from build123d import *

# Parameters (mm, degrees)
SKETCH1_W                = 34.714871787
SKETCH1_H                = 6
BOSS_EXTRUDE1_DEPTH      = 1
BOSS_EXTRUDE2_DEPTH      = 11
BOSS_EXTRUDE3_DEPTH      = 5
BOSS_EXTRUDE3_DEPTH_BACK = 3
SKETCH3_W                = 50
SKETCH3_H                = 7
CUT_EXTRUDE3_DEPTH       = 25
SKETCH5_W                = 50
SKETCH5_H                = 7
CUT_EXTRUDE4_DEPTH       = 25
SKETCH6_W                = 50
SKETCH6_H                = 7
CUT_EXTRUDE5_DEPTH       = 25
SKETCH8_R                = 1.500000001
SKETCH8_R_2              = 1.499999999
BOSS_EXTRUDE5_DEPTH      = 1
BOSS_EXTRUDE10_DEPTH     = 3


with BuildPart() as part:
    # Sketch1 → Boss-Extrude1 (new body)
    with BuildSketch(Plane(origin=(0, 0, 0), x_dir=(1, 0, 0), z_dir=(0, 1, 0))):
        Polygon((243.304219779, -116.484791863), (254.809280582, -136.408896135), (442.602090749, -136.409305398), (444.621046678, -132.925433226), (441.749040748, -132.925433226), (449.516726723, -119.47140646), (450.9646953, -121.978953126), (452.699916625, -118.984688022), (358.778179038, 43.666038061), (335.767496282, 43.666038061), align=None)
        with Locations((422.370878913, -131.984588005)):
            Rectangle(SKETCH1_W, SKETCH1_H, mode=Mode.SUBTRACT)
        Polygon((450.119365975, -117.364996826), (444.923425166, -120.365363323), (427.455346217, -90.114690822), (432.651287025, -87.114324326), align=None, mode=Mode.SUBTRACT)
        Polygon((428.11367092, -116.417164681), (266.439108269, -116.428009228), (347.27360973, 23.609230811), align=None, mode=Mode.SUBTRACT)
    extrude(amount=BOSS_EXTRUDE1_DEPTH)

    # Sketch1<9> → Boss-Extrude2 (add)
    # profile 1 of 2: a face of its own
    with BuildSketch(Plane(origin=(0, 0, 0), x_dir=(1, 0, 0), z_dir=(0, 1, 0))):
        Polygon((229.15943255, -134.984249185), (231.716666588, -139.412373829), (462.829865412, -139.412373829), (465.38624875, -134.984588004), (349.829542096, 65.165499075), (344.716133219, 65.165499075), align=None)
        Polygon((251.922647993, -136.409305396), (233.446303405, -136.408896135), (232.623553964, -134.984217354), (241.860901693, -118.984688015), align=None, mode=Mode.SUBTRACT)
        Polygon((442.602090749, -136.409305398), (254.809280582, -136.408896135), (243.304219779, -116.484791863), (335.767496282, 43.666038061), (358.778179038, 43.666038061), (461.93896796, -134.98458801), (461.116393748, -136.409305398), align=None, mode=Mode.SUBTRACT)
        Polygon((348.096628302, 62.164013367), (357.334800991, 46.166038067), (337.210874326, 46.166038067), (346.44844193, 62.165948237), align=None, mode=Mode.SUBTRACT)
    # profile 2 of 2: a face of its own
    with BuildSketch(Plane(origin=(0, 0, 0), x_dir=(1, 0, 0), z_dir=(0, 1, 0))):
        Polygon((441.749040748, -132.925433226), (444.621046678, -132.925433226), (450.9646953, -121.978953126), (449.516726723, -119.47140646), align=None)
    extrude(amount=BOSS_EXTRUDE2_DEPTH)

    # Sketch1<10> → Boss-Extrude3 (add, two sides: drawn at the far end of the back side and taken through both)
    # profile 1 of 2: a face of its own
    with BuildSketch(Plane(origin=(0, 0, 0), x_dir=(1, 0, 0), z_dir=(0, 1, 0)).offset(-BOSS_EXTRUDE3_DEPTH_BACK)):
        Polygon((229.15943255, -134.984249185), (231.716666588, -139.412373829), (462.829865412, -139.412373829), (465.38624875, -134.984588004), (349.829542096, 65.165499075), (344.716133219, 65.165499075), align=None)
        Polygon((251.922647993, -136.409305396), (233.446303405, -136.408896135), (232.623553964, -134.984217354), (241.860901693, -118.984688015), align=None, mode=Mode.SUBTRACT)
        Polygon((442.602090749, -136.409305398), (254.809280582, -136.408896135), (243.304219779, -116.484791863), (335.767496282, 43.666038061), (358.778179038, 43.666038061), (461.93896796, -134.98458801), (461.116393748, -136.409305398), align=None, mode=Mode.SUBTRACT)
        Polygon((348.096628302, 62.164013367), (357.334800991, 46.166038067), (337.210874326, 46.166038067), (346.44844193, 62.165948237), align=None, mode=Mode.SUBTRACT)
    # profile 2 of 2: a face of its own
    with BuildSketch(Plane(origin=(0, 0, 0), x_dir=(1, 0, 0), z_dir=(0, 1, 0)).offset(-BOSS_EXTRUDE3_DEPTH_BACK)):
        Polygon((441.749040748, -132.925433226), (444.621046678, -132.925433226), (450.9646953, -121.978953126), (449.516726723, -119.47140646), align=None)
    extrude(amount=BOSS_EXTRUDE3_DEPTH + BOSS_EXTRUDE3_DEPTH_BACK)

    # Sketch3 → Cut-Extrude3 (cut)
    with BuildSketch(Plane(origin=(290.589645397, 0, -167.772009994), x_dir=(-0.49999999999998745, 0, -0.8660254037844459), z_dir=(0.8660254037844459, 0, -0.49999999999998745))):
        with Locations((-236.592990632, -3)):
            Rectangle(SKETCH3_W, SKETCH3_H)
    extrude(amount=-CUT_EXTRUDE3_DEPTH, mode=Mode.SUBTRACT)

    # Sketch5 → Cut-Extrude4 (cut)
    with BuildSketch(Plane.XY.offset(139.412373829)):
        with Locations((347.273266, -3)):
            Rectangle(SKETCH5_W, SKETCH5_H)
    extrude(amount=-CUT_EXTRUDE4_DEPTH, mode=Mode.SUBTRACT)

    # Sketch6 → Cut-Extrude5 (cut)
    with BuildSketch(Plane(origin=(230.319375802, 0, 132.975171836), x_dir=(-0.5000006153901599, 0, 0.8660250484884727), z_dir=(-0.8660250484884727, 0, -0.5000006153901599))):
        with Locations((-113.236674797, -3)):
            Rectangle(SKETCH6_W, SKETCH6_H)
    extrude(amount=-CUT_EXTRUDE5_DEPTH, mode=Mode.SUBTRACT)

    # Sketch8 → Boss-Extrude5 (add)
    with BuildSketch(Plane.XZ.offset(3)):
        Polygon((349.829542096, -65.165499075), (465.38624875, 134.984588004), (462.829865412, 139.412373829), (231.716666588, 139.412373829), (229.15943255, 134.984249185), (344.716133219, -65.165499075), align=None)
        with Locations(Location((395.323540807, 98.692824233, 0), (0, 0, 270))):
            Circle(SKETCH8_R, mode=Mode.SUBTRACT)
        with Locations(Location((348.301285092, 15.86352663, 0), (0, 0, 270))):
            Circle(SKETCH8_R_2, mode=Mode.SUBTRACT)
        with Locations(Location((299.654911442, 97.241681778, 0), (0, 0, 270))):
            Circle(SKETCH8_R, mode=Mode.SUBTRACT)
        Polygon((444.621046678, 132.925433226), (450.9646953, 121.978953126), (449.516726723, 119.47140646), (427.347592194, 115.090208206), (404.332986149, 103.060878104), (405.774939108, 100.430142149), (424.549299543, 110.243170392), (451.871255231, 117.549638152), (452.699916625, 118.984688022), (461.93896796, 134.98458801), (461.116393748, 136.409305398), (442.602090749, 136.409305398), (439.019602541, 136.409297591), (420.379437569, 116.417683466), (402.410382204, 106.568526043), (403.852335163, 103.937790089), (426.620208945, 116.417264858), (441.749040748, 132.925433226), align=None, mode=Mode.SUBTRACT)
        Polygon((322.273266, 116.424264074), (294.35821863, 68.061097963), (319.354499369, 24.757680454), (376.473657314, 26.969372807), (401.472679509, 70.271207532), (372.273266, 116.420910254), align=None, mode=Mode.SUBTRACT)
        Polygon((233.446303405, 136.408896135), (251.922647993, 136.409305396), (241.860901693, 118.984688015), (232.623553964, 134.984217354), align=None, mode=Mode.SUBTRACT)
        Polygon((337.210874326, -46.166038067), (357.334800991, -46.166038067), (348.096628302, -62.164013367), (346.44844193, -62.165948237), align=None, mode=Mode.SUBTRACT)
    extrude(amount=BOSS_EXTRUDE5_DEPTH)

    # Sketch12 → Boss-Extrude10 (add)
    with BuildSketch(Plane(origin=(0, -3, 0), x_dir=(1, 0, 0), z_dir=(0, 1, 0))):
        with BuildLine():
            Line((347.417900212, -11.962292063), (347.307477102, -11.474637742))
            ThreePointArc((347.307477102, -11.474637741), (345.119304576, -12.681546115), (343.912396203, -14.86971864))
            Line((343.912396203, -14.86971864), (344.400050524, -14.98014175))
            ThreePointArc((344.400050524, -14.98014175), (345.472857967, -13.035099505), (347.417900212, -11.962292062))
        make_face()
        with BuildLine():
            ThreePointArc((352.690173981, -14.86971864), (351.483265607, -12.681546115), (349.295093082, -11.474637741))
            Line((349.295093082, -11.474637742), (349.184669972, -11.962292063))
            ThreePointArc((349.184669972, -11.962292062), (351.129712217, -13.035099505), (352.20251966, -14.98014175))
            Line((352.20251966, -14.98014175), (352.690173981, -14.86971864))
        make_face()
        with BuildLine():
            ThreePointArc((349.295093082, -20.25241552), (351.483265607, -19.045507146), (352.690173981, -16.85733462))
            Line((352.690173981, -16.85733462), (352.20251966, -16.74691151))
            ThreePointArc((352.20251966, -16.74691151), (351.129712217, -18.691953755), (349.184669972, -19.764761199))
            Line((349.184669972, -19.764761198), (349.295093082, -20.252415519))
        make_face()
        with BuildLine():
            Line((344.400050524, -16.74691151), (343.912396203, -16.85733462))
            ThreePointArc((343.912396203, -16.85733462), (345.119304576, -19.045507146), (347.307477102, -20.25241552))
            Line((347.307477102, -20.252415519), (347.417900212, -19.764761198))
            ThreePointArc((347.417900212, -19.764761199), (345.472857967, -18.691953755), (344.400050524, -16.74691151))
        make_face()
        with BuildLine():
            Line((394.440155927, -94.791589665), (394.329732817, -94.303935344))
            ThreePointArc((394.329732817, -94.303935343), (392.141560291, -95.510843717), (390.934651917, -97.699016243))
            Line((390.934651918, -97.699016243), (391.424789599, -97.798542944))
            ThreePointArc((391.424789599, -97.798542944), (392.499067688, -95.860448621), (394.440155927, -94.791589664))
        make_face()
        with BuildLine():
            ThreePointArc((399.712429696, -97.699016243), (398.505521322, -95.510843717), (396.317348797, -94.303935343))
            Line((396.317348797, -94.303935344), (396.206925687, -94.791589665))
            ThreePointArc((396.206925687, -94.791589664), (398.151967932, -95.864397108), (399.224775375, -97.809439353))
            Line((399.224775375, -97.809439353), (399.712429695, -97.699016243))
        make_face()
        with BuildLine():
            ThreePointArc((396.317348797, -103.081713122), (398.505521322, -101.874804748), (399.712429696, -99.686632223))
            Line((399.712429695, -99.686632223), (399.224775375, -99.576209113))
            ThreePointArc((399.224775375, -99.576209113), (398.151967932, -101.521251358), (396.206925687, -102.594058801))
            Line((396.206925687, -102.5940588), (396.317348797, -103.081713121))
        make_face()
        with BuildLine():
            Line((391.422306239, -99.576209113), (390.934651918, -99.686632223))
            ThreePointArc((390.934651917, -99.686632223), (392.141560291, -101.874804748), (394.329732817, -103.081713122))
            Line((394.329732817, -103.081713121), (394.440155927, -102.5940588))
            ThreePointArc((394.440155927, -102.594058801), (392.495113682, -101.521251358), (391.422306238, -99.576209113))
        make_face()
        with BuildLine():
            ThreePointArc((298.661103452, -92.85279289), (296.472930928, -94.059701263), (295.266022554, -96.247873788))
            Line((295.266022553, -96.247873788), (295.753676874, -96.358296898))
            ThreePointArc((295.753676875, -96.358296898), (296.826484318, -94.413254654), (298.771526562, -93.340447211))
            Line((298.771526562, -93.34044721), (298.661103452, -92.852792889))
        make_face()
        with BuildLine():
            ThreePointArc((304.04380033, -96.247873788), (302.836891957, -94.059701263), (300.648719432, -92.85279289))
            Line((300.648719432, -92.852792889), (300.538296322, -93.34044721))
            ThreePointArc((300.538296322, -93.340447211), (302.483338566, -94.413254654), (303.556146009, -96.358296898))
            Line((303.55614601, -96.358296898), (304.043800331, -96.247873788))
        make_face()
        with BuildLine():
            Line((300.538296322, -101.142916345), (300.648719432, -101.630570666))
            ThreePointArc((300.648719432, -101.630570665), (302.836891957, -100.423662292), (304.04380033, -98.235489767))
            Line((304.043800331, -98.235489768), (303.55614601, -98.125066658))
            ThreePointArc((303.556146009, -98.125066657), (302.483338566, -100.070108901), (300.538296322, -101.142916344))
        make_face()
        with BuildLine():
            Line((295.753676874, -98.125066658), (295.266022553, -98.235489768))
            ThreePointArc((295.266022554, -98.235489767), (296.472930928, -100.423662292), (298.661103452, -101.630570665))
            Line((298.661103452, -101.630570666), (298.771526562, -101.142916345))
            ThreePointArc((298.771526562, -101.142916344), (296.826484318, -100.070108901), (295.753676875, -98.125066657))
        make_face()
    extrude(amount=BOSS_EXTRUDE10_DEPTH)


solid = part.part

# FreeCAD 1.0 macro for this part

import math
import FreeCAD as App
import Part
import Sketcher

V = App.Vector
Q = App.Units.Quantity


def add_polygon(sketch, points):
    """Adds a closed chain of lines whose ends are joined by coincident constraints."""
    first, n = sketch.GeometryCount, len(points)
    for a, b in zip(points, points[1:] + points[:1]):
        sketch.addGeometry(Part.LineSegment(App.Vector(*a, 0), App.Vector(*b, 0)), False)
    for i in range(n):
        sketch.addConstraint(Sketcher.Constraint("Coincident", first + i, 2, first + (i + 1) % n, 1))

doc = App.newDocument("Part")
body = doc.addObject("PartDesign::Body", "Body")

# Sketch on XZ plane
sketch1 = body.newObject("Sketcher::SketchObject", "Sketch")
sketch1.AttachmentSupport = (doc.getObject("XZ_Plane"), [""])
sketch1.MapMode = "FlatFace"
add_polygon(sketch1, [(243.30422, 116.484792), (254.809281, 136.408896), (442.602091, 136.409305), (444.621047, 132.925433), (441.749041, 132.925433), (449.516727, 119.471406), (450.964695, 121.978953), (452.699917, 118.984688), (358.778179, -43.666038), (335.767496, -43.666038)])  # lines 0-9
add_polygon(sketch1, [(439.728315, 134.984588), (405.013443, 134.984588), (405.013443, 128.984588), (439.728315, 128.984588)])  # lines 10-13
add_polygon(sketch1, [(432.651287, 87.114324), (450.119366, 117.364997), (444.923425, 120.365363), (427.455346, 90.114691)])  # lines 14-17
add_polygon(sketch1, [(347.27361, -23.609231), (428.113671, 116.417165), (266.439108, 116.428009)])  # lines 18-20
sketch1.addConstraint(Sketcher.Constraint("Horizontal", 3))
sketch1.addConstraint(Sketcher.Constraint("Horizontal", 8))
sketch1.addConstraint(Sketcher.Constraint("Horizontal", 10))
sketch1.addConstraint(Sketcher.Constraint("Vertical", 11))
sketch1.addConstraint(Sketcher.Constraint("Horizontal", 12))
sketch1.addConstraint(Sketcher.Constraint("Vertical", 13))
sketch1.addConstraint(Sketcher.Constraint("DistanceY", 11, 2, 11, 1, Q("6 mm")))
sketch1.addConstraint(Sketcher.Constraint("Distance", 15, Q("6 mm")))
sketch1.addConstraint(Sketcher.Constraint("Distance", 17, Q("6 mm")))
sketch1.addConstraint(Sketcher.Constraint("DistanceX", 10, 2, 10, 1, Q("34.714872 mm")))
sketch1.addConstraint(Sketcher.Constraint("DistanceY", 4, 2, 1, 2, Q("16.937899 mm")))
sketch1.addConstraint(Sketcher.Constraint("DistanceX", 8, 2, 5, 2, Q("115.197199 mm")))
sketch1.addConstraint(Sketcher.Constraint("DistanceX", 15, 2, 4, 2, Q("4.593302 mm")))
sketch1.addConstraint(Sketcher.Constraint("DistanceY", 18, 2, 15, 2, Q("3.948199 mm")))
sketch1.addConstraint(Sketcher.Constraint("Distance", 0, Q("23.007311 mm")))
sketch1.addConstraint(Sketcher.Constraint("Distance", 1, Q("187.79281 mm")))
sketch1.addConstraint(Sketcher.Constraint("Distance", 4, Q("15.535372 mm")))
sketch1.addConstraint(Sketcher.Constraint("Distance", 7, Q("187.82053 mm")))
sketch1.addConstraint(Sketcher.Constraint("Distance", 14, Q("34.93189 mm")))
sketch1.addConstraint(Sketcher.Constraint("Distance", 16, Q("34.93189 mm")))
sketch1.addConstraint(Sketcher.Constraint("Distance", 20, Q("161.693059 mm")))
sketch1.addConstraint(Sketcher.Constraint("DistanceX", 3, 2, 3, 1, Q("2.872006 mm")))
sketch1.addConstraint(Sketcher.Constraint("DistanceX", 8, 2, 8, 1, Q("23.010683 mm")))
sketch1.addConstraint(Sketcher.Constraint("DistanceX", -1, 1, 0, 2, Q("254.809281 mm")))
sketch1.addConstraint(Sketcher.Constraint("DistanceX", -1, 1, 3, 2, Q("441.749041 mm")))
sketch1.addConstraint(Sketcher.Constraint("DistanceY", -1, 1, 6, 2, Q("118.984688 mm")))
sketch1.addConstraint(Sketcher.Constraint("DistanceX", -1, 1, 7, 2, Q("358.778179 mm")))
sketch1.addConstraint(Sketcher.Constraint("DistanceY", 7, 2, -1, 1, Q("43.666038 mm")))
sketch1.addConstraint(Sketcher.Constraint("DistanceX", -1, 1, 9, 2, Q("243.30422 mm")))
sketch1.addConstraint(Sketcher.Constraint("DistanceY", -1, 1, 9, 2, Q("116.484792 mm")))
sketch1.addConstraint(Sketcher.Constraint("DistanceY", -1, 1, 10, 2, Q("134.984588 mm")))
sketch1.addConstraint(Sketcher.Constraint("DistanceY", -1, 1, 16, 2, Q("90.114691 mm")))
sketch1.addConstraint(Sketcher.Constraint("DistanceX", -1, 1, 18, 2, Q("428.113671 mm")))
sketch1.addConstraint(Sketcher.Constraint("DistanceX", -1, 1, 19, 2, Q("266.439108 mm")))
sketch1.addConstraint(Sketcher.Constraint("DistanceY", -1, 1, 19, 2, Q("116.428009 mm")))
sketch1.addConstraint(Sketcher.Constraint("DistanceX", -1, 1, 20, 2, Q("347.27361 mm")))
sketch1.addConstraint(Sketcher.Constraint("DistanceY", 0, 2, 1, 2, Q("0.000409 mm")))
sketch1.addConstraint(Sketcher.Constraint("DistanceX", 2, 2, 4, 2, Q("4.89568 mm")))
sketch1.addConstraint(Sketcher.Constraint("DistanceY", 5, 2, 2, 2, Q("10.94648 mm")))
sketch1.addConstraint(Sketcher.Constraint("DistanceX", 12, 2, 2, 2, Q("4.892732 mm")))
sketch1.addConstraint(Sketcher.Constraint("DistanceX", 4, 2, 14, 2, Q("0.602639 mm")))
sketch1.addConstraint(Sketcher.Constraint("DistanceY", 14, 2, 4, 2, Q("2.10641 mm")))
pad1 = body.newObject("PartDesign::Pad", "Pad")
pad1.Profile = sketch1
pad1.Length = 1
pad1.Reversed = True

# Sketch on XZ plane
sketch2 = body.newObject("Sketcher::SketchObject", "Sketch001")
sketch2.AttachmentSupport = (doc.getObject("XZ_Plane"), [""])
sketch2.MapMode = "FlatFace"
add_polygon(sketch2, [(229.159433, 134.984249), (231.716667, 139.412374), (462.829865, 139.412374), (465.386249, 134.984588), (349.829542, -65.165499), (344.716133, -65.165499)])  # lines 0-5
add_polygon(sketch2, [(241.860902, 118.984688), (251.922648, 136.409305), (233.446303, 136.408896), (232.623554, 134.984217)])  # lines 6-9
add_polygon(sketch2, [(461.116394, 136.409305), (442.602091, 136.409305), (254.809281, 136.408896), (243.30422, 116.484792), (335.767496, -43.666038), (358.778179, -43.666038), (461.938968, 134.984588)])  # lines 10-16
add_polygon(sketch2, [(346.448442, -62.165948), (348.096628, -62.164013), (357.334801, -46.166038), (337.210874, -46.166038)])  # lines 17-20
add_polygon(sketch2, [(441.749041, 132.925433), (444.621047, 132.925433), (450.964695, 121.978953), (449.516727, 119.471406)])  # lines 21-24
sketch2.addConstraint(Sketcher.Constraint("Horizontal", 1))
sketch2.addConstraint(Sketcher.Constraint("Horizontal", 4))
sketch2.addConstraint(Sketcher.Constraint("Horizontal", 10))
sketch2.addConstraint(Sketcher.Constraint("Horizontal", 14))
sketch2.addConstraint(Sketcher.Constraint("Horizontal", 19))
sketch2.addConstraint(Sketcher.Constraint("Horizontal", 21))
sketch2.addConstraint(Sketcher.Constraint("DistanceY", 18, 2, 14, 2, Q("2.5 mm")))
sketch2.addConstraint(Sketcher.Constraint("DistanceX", 1, 1, 1, 2, Q("231.113199 mm")))
sketch2.addConstraint(Sketcher.Constraint("DistanceX", 4, 2, 4, 1, Q("5.113409 mm")))
sketch2.addConstraint(Sketcher.Constraint("DistanceY", 3, 2, -1, 1, Q("65.165499 mm")))
sketch2.addConstraint(Sketcher.Constraint("DistanceX", -1, 1, 9, 2, Q("241.860902 mm")))
sketch2.addConstraint(Sketcher.Constraint("DistanceX", -1, 1, 18, 2, Q("357.334801 mm")))
sketch2.addConstraint(Sketcher.Constraint("DistanceX", 5, 2, 4, 2, Q("115.556701 mm")))
sketch2.addConstraint(Sketcher.Constraint("DistanceX", 6, 2, 2, 2, Q("213.463601 mm")))
sketch2.addConstraint(Sketcher.Constraint("DistanceX", 7, 2, 9, 2, Q("8.414598 mm")))
sketch2.addConstraint(Sketcher.Constraint("DistanceX", 20, 2, 3, 2, Q("3.3811 mm")))
sketch2.addConstraint(Sketcher.Constraint("DistanceX", 22, 2, 16, 2, Q("10.151698 mm")))
sketch2.addConstraint(Sketcher.Constraint("DistanceY", 23, 2, 10, 2, Q("16.937899 mm")))
sketch2.addConstraint(Sketcher.Constraint("Distance", 11, Q("187.79281 mm")))
sketch2.addConstraint(Sketcher.Constraint("Distance", 12, Q("23.007311 mm")))
sketch2.addConstraint(Sketcher.Constraint("Distance", 16, Q("1.645129 mm")))
sketch2.addConstraint(Sketcher.Constraint("Distance", 18, Q("18.473739 mm")))
sketch2.addConstraint(Sketcher.Constraint("Distance", 22, Q("12.651771 mm")))
sketch2.addConstraint(Sketcher.Constraint("Distance", 24, Q("15.535372 mm")))
sketch2.addConstraint(Sketcher.Constraint("DistanceX", 10, 2, 10, 1, Q("18.514303 mm")))
sketch2.addConstraint(Sketcher.Constraint("DistanceX", 14, 1, 14, 2, Q("23.010683 mm")))
sketch2.addConstraint(Sketcher.Constraint("DistanceX", 19, 2, 19, 1, Q("20.123927 mm")))
sketch2.addConstraint(Sketcher.Constraint("DistanceX", 21, 1, 21, 2, Q("2.872006 mm")))
sketch2.addConstraint(Sketcher.Constraint("DistanceX", -1, 1, 2, 2, Q("465.386249 mm")))
sketch2.addConstraint(Sketcher.Constraint("DistanceY", -1, 1, 2, 2, Q("134.984588 mm")))
sketch2.addConstraint(Sketcher.Constraint("DistanceY", -1, 1, 5, 2, Q("134.984249 mm")))
sketch2.addConstraint(Sketcher.Constraint("DistanceY", -1, 1, 9, 2, Q("118.984688 mm")))
sketch2.addConstraint(Sketcher.Constraint("DistanceX", -1, 1, 10, 2, Q("442.602091 mm")))
sketch2.addConstraint(Sketcher.Constraint("DistanceX", -1, 1, 12, 2, Q("243.30422 mm")))
sketch2.addConstraint(Sketcher.Constraint("DistanceY", -1, 1, 12, 2, Q("116.484792 mm")))
sketch2.addConstraint(Sketcher.Constraint("DistanceY", 13, 2, -1, 1, Q("43.666038 mm")))
sketch2.addConstraint(Sketcher.Constraint("DistanceX", -1, 1, 14, 2, Q("358.778179 mm")))
sketch2.addConstraint(Sketcher.Constraint("DistanceY", -1, 1, 15, 2, Q("134.984588 mm")))
sketch2.addConstraint(Sketcher.Constraint("DistanceX", -1, 1, 17, 2, Q("348.096628 mm")))
sketch2.addConstraint(Sketcher.Constraint("DistanceX", -1, 1, 20, 2, Q("346.448442 mm")))
sketch2.addConstraint(Sketcher.Constraint("DistanceY", 20, 2, -1, 1, Q("62.165948 mm")))
sketch2.addConstraint(Sketcher.Constraint("DistanceX", -1, 1, 24, 2, Q("441.749041 mm")))
sketch2.addConstraint(Sketcher.Constraint("DistanceX", 0, 2, 6, 2, Q("20.205981 mm")))
sketch2.addConstraint(Sketcher.Constraint("DistanceY", 6, 2, 0, 2, Q("3.003068 mm")))
sketch2.addConstraint(Sketcher.Constraint("DistanceY", 7, 2, 6, 2, Q("0.000409 mm")))
sketch2.addConstraint(Sketcher.Constraint("DistanceX", 8, 2, 7, 2, Q("0.822749 mm")))
sketch2.addConstraint(Sketcher.Constraint("DistanceY", 8, 2, 7, 2, Q("1.424679 mm")))
sketch2.addConstraint(Sketcher.Constraint("DistanceY", 9, 2, 8, 2, Q("15.999529 mm")))
sketch2.addConstraint(Sketcher.Constraint("DistanceY", 10, 2, 1, 2, Q("3.003068 mm")))
sketch2.addConstraint(Sketcher.Constraint("DistanceY", 21, 2, 1, 2, Q("6.486941 mm")))
pad2 = body.newObject("PartDesign::Pad", "Pad001")
pad2.Profile = sketch2
pad2.Length = 11
pad2.Reversed = True

# Sketch on XZ plane
sketch3 = body.newObject("Sketcher::SketchObject", "Sketch002")
sketch3.AttachmentSupport = (doc.getObject("XZ_Plane"), [""])
sketch3.MapMode = "FlatFace"
add_polygon(sketch3, [(229.159433, 134.984249), (231.716667, 139.412374), (462.829865, 139.412374), (465.386249, 134.984588), (349.829542, -65.165499), (344.716133, -65.165499)])  # lines 0-5
add_polygon(sketch3, [(241.860902, 118.984688), (251.922648, 136.409305), (233.446303, 136.408896), (232.623554, 134.984217)])  # lines 6-9
add_polygon(sketch3, [(461.116394, 136.409305), (442.602091, 136.409305), (254.809281, 136.408896), (243.30422, 116.484792), (335.767496, -43.666038), (358.778179, -43.666038), (461.938968, 134.984588)])  # lines 10-16
add_polygon(sketch3, [(346.448442, -62.165948), (348.096628, -62.164013), (357.334801, -46.166038), (337.210874, -46.166038)])  # lines 17-20
add_polygon(sketch3, [(441.749041, 132.925433), (444.621047, 132.925433), (450.964695, 121.978953), (449.516727, 119.471406)])  # lines 21-24
sketch3.addConstraint(Sketcher.Constraint("Horizontal", 1))
sketch3.addConstraint(Sketcher.Constraint("Horizontal", 4))
sketch3.addConstraint(Sketcher.Constraint("Horizontal", 10))
sketch3.addConstraint(Sketcher.Constraint("Horizontal", 14))
sketch3.addConstraint(Sketcher.Constraint("Horizontal", 19))
sketch3.addConstraint(Sketcher.Constraint("Horizontal", 21))
sketch3.addConstraint(Sketcher.Constraint("DistanceY", 18, 2, 14, 2, Q("2.5 mm")))
sketch3.addConstraint(Sketcher.Constraint("DistanceX", 1, 1, 1, 2, Q("231.113199 mm")))
sketch3.addConstraint(Sketcher.Constraint("DistanceX", 4, 2, 4, 1, Q("5.113409 mm")))
sketch3.addConstraint(Sketcher.Constraint("DistanceY", 3, 2, -1, 1, Q("65.165499 mm")))
sketch3.addConstraint(Sketcher.Constraint("DistanceX", -1, 1, 9, 2, Q("241.860902 mm")))
sketch3.addConstraint(Sketcher.Constraint("DistanceX", -1, 1, 18, 2, Q("357.334801 mm")))
sketch3.addConstraint(Sketcher.Constraint("DistanceX", 5, 2, 4, 2, Q("115.556701 mm")))
sketch3.addConstraint(Sketcher.Constraint("DistanceX", 6, 2, 2, 2, Q("213.463601 mm")))
sketch3.addConstraint(Sketcher.Constraint("DistanceX", 7, 2, 9, 2, Q("8.414598 mm")))
sketch3.addConstraint(Sketcher.Constraint("DistanceX", 20, 2, 3, 2, Q("3.3811 mm")))
sketch3.addConstraint(Sketcher.Constraint("DistanceX", 22, 2, 16, 2, Q("10.151698 mm")))
sketch3.addConstraint(Sketcher.Constraint("DistanceY", 23, 2, 10, 2, Q("16.937899 mm")))
sketch3.addConstraint(Sketcher.Constraint("Distance", 11, Q("187.79281 mm")))
sketch3.addConstraint(Sketcher.Constraint("Distance", 12, Q("23.007311 mm")))
sketch3.addConstraint(Sketcher.Constraint("Distance", 16, Q("1.645129 mm")))
sketch3.addConstraint(Sketcher.Constraint("Distance", 18, Q("18.473739 mm")))
sketch3.addConstraint(Sketcher.Constraint("Distance", 22, Q("12.651771 mm")))
sketch3.addConstraint(Sketcher.Constraint("Distance", 24, Q("15.535372 mm")))
sketch3.addConstraint(Sketcher.Constraint("DistanceX", 10, 2, 10, 1, Q("18.514303 mm")))
sketch3.addConstraint(Sketcher.Constraint("DistanceX", 14, 1, 14, 2, Q("23.010683 mm")))
sketch3.addConstraint(Sketcher.Constraint("DistanceX", 19, 2, 19, 1, Q("20.123927 mm")))
sketch3.addConstraint(Sketcher.Constraint("DistanceX", 21, 1, 21, 2, Q("2.872006 mm")))
sketch3.addConstraint(Sketcher.Constraint("DistanceX", -1, 1, 2, 2, Q("465.386249 mm")))
sketch3.addConstraint(Sketcher.Constraint("DistanceY", -1, 1, 2, 2, Q("134.984588 mm")))
sketch3.addConstraint(Sketcher.Constraint("DistanceY", -1, 1, 5, 2, Q("134.984249 mm")))
sketch3.addConstraint(Sketcher.Constraint("DistanceY", -1, 1, 9, 2, Q("118.984688 mm")))
sketch3.addConstraint(Sketcher.Constraint("DistanceX", -1, 1, 10, 2, Q("442.602091 mm")))
sketch3.addConstraint(Sketcher.Constraint("DistanceX", -1, 1, 12, 2, Q("243.30422 mm")))
sketch3.addConstraint(Sketcher.Constraint("DistanceY", -1, 1, 12, 2, Q("116.484792 mm")))
sketch3.addConstraint(Sketcher.Constraint("DistanceY", 13, 2, -1, 1, Q("43.666038 mm")))
sketch3.addConstraint(Sketcher.Constraint("DistanceX", -1, 1, 14, 2, Q("358.778179 mm")))
sketch3.addConstraint(Sketcher.Constraint("DistanceY", -1, 1, 15, 2, Q("134.984588 mm")))
sketch3.addConstraint(Sketcher.Constraint("DistanceX", -1, 1, 17, 2, Q("348.096628 mm")))
sketch3.addConstraint(Sketcher.Constraint("DistanceX", -1, 1, 20, 2, Q("346.448442 mm")))
sketch3.addConstraint(Sketcher.Constraint("DistanceY", 20, 2, -1, 1, Q("62.165948 mm")))
sketch3.addConstraint(Sketcher.Constraint("DistanceX", -1, 1, 24, 2, Q("441.749041 mm")))
sketch3.addConstraint(Sketcher.Constraint("DistanceX", 0, 2, 6, 2, Q("20.205981 mm")))
sketch3.addConstraint(Sketcher.Constraint("DistanceY", 6, 2, 0, 2, Q("3.003068 mm")))
sketch3.addConstraint(Sketcher.Constraint("DistanceY", 7, 2, 6, 2, Q("0.000409 mm")))
sketch3.addConstraint(Sketcher.Constraint("DistanceX", 8, 2, 7, 2, Q("0.822749 mm")))
sketch3.addConstraint(Sketcher.Constraint("DistanceY", 8, 2, 7, 2, Q("1.424679 mm")))
sketch3.addConstraint(Sketcher.Constraint("DistanceY", 9, 2, 8, 2, Q("15.999529 mm")))
sketch3.addConstraint(Sketcher.Constraint("DistanceY", 10, 2, 1, 2, Q("3.003068 mm")))
sketch3.addConstraint(Sketcher.Constraint("DistanceY", 21, 2, 1, 2, Q("6.486941 mm")))
pad3 = body.newObject("PartDesign::Pad", "Pad002")
pad3.Profile = sketch3
pad3.Type = "TwoLengths"
pad3.Length = 5
pad3.Length2 = 3
pad3.Reversed = True

# Sketch on an angled plane
sketch4 = body.newObject("Sketcher::SketchObject", "Sketch003")
sketch4.Placement = App.Placement(V(290.589645, 0, -167.77201), App.Rotation(V(-0.5, 0, -0.866025404), V(0, 1, 0), V(0.866025404, 0, -0.5), "ZXY"))
add_polygon(sketch4, [(-261.592991, 0.5), (-261.592991, -6.5), (-211.592991, -6.5), (-211.592991, 0.5)])  # lines 0-3
sketch4.addConstraint(Sketcher.Constraint("Vertical", 0))
sketch4.addConstraint(Sketcher.Constraint("Horizontal", 1))
sketch4.addConstraint(Sketcher.Constraint("Vertical", 2))
sketch4.addConstraint(Sketcher.Constraint("Horizontal", 3))
sketch4.addConstraint(Sketcher.Constraint("DistanceX", 1, 1, 1, 2, Q("50 mm")))
sketch4.addConstraint(Sketcher.Constraint("DistanceY", 0, 2, 0, 1, Q("7 mm")))
sketch4.addConstraint(Sketcher.Constraint("DistanceY", 0, 2, -1, 1, Q("6.5 mm")))
sketch4.addConstraint(Sketcher.Constraint("DistanceX", 0, 2, -1, 1, Q("261.592991 mm")))
pocket1 = body.newObject("PartDesign::Pocket", "Pocket")
pocket1.Profile = sketch4
pocket1.Length = 25

# Sketch on XY plane
sketch5 = body.newObject("Sketcher::SketchObject", "Sketch004")
sketch5.AttachmentSupport = (doc.getObject("XY_Plane"), [""])
sketch5.MapMode = "FlatFace"
sketch5.AttachmentOffset = App.Placement(V(0, 0, 139.412374), App.Rotation())
add_polygon(sketch5, [(322.273266, 0.5), (322.273266, -6.5), (372.273266, -6.5), (372.273266, 0.5)])  # lines 0-3
sketch5.addConstraint(Sketcher.Constraint("Vertical", 0))
sketch5.addConstraint(Sketcher.Constraint("Horizontal", 1))
sketch5.addConstraint(Sketcher.Constraint("Vertical", 2))
sketch5.addConstraint(Sketcher.Constraint("Horizontal", 3))
sketch5.addConstraint(Sketcher.Constraint("DistanceX", 1, 1, 1, 2, Q("50 mm")))
sketch5.addConstraint(Sketcher.Constraint("DistanceY", 0, 2, 0, 1, Q("7 mm")))
sketch5.addConstraint(Sketcher.Constraint("DistanceY", 0, 2, -1, 1, Q("6.5 mm")))
sketch5.addConstraint(Sketcher.Constraint("DistanceX", -1, 1, 0, 2, Q("322.273266 mm")))
pocket2 = body.newObject("PartDesign::Pocket", "Pocket001")
pocket2.Profile = sketch5
pocket2.Length = 25

# Sketch on an angled plane
sketch6 = body.newObject("Sketcher::SketchObject", "Sketch005")
sketch6.Placement = App.Placement(V(230.319376, 0, 132.975172), App.Rotation(V(-0.500000615, 0, 0.866025048), V(0, 0.999999999, 0), V(-0.866025048, 0, -0.500000615), "ZXY"))
add_polygon(sketch6, [(-138.236675, 0.5), (-138.236675, -6.5), (-88.236675, -6.5), (-88.236675, 0.5)])  # lines 0-3
sketch6.addConstraint(Sketcher.Constraint("Vertical", 0))
sketch6.addConstraint(Sketcher.Constraint("Horizontal", 1))
sketch6.addConstraint(Sketcher.Constraint("Vertical", 2))
sketch6.addConstraint(Sketcher.Constraint("Horizontal", 3))
sketch6.addConstraint(Sketcher.Constraint("DistanceX", 1, 1, 1, 2, Q("50 mm")))
sketch6.addConstraint(Sketcher.Constraint("DistanceY", 0, 2, 0, 1, Q("7 mm")))
sketch6.addConstraint(Sketcher.Constraint("DistanceY", 0, 2, -1, 1, Q("6.5 mm")))
sketch6.addConstraint(Sketcher.Constraint("DistanceX", 0, 2, -1, 1, Q("138.236675 mm")))
pocket3 = body.newObject("PartDesign::Pocket", "Pocket002")
pocket3.Profile = sketch6
pocket3.Length = 25

# Sketch on XZ plane
sketch7 = body.newObject("Sketcher::SketchObject", "Sketch006")
sketch7.AttachmentSupport = (doc.getObject("XZ_Plane"), [""])
sketch7.MapMode = "FlatFace"
sketch7.AttachmentOffset = App.Placement(V(0, 0, 3), App.Rotation())
add_polygon(sketch7, [(349.829542, -65.165499), (465.386249, 134.984588), (462.829865, 139.412374), (231.716667, 139.412374), (229.159433, 134.984249), (344.716133, -65.165499)])  # lines 0-5
add_polygon(sketch7, [(346.448442, -62.165948), (337.210874, -46.166038), (357.334801, -46.166038), (348.096628, -62.164013)])  # lines 6-9
sketch7.addGeometry(Part.Circle(V(348.301285, 15.863527, 0), V(0, 0, 1), 1.5), False)  # 10
add_polygon(sketch7, [(232.623554, 134.984217), (233.446303, 136.408896), (251.922648, 136.409305), (241.860902, 118.984688)])  # lines 11-14
sketch7.addGeometry(Part.Circle(V(299.654911, 97.241682, 0), V(0, 0, 1), 1.5), False)  # 15
add_polygon(sketch7, [(294.358219, 68.061098), (322.273266, 116.424264), (372.273266, 116.42091), (401.47268, 70.271208), (376.473657, 26.969373), (319.354499, 24.75768)])  # lines 16-21
sketch7.addGeometry(Part.Circle(V(395.323541, 98.692824, 0), V(0, 0, 1), 1.5), False)  # 22
add_polygon(sketch7, [(450.964695, 121.978953), (444.621047, 132.925433), (441.749041, 132.925433), (426.620209, 116.417265), (403.852335, 103.93779), (402.410382, 106.568526), (420.379438, 116.417683), (439.019603, 136.409298), (442.602091, 136.409305), (461.116394, 136.409305), (461.938968, 134.984588), (452.699917, 118.984688), (451.871255, 117.549638), (424.5493, 110.24317), (405.774939, 100.430142), (404.332986, 103.060878), (427.347592, 115.090208), (449.516727, 119.471406)])  # lines 23-40
sketch7.addConstraint(Sketcher.Constraint("Horizontal", 2))
sketch7.addConstraint(Sketcher.Constraint("Horizontal", 5))
sketch7.addConstraint(Sketcher.Constraint("Horizontal", 7))
sketch7.addConstraint(Sketcher.Constraint("Horizontal", 24))
sketch7.addConstraint(Sketcher.Constraint("Horizontal", 31))
sketch7.addConstraint(Sketcher.Constraint("Diameter", 10, Q("3 mm")))
sketch7.addConstraint(Sketcher.Constraint("Diameter", 15, Q("3 mm")))
sketch7.addConstraint(Sketcher.Constraint("Diameter", 22, Q("3 mm")))
sketch7.addConstraint(Sketcher.Constraint("Distance", 17, Q("50 mm")))
sketch7.addConstraint(Sketcher.Constraint("Distance", 19, Q("50 mm")))
sketch7.addConstraint(Sketcher.Constraint("Distance", 21, Q("50 mm")))
sketch7.addConstraint(Sketcher.Constraint("Distance", 27, Q("3 mm")))
sketch7.addConstraint(Sketcher.Constraint("Distance", 37, Q("3 mm")))
sketch7.addConstraint(Sketcher.Constraint("DistanceX", 2, 2, 2, 1, Q("231.113199 mm")))
sketch7.addConstraint(Sketcher.Constraint("DistanceX", 5, 2, 22, 3, Q("45.493999 mm")))
sketch7.addConstraint(Sketcher.Constraint("DistanceY", 20, 2, 15, 3, Q("72.484001 mm")))
sketch7.addConstraint(Sketcher.Constraint("DistanceX", 5, 1, 5, 2, Q("5.113409 mm")))
sketch7.addConstraint(Sketcher.Constraint("DistanceY", 4, 2, -1, 1, Q("65.165499 mm")))
sketch7.addConstraint(Sketcher.Constraint("DistanceX", -1, 1, 7, 2, Q("357.334801 mm")))
sketch7.addConstraint(Sketcher.Constraint("DistanceX", -1, 1, 13, 2, Q("241.860902 mm")))
sketch7.addConstraint(Sketcher.Constraint("DistanceX", -1, 1, 20, 2, Q("319.354499 mm")))
sketch7.addConstraint(Sketcher.Constraint("DistanceX", -1, 1, 35, 2, Q("424.5493 mm")))
sketch7.addConstraint(Sketcher.Constraint("DistanceX", 3, 2, 4, 2, Q("115.556701 mm")))
sketch7.addConstraint(Sketcher.Constraint("DistanceX", 9, 2, 5, 2, Q("3.3811 mm")))
sketch7.addConstraint(Sketcher.Constraint("DistanceX", 11, 2, 13, 2, Q("8.414598 mm")))
sketch7.addConstraint(Sketcher.Constraint("DistanceX", 17, 2, 1, 2, Q("90.556599 mm")))
sketch7.addConstraint(Sketcher.Constraint("DistanceX", 22, 3, 24, 2, Q("46.4255 mm")))
sketch7.addConstraint(Sketcher.Constraint("DistanceY", 22, 3, 27, 2, Q("7.875702 mm")))
sketch7.addConstraint(Sketcher.Constraint("DistanceY", 33, 2, 32, 2, Q("15.9999 mm")))
sketch7.addConstraint(Sketcher.Constraint("DistanceX", 22, 3, 36, 2, Q("10.451398 mm")))
sketch7.addConstraint(Sketcher.Constraint("DistanceX", 36, 2, 28, 2, Q("14.604498 mm")))
sketch7.addConstraint(Sketcher.Constraint("DistanceY", 39, 2, 30, 2, Q("16.937899 mm")))
sketch7.addConstraint(Sketcher.Constraint("Distance", 8, Q("18.473739 mm")))
sketch7.addConstraint(Sketcher.Constraint("Distance", 18, Q("54.611362 mm")))
sketch7.addConstraint(Sketcher.Constraint("Distance", 20, Q("57.161961 mm")))
sketch7.addConstraint(Sketcher.Constraint("Distance", 23, Q("12.651771 mm")))
sketch7.addConstraint(Sketcher.Constraint("Distance", 25, Q("22.391989 mm")))
sketch7.addConstraint(Sketcher.Constraint("Distance", 30, Q("3.582488 mm")))
sketch7.addConstraint(Sketcher.Constraint("Distance", 32, Q("1.645129 mm")))
sketch7.addConstraint(Sketcher.Constraint("Distance", 34, Q("1.65712 mm")))
sketch7.addConstraint(Sketcher.Constraint("Distance", 35, Q("28.282039 mm")))
sketch7.addConstraint(Sketcher.Constraint("DistanceX", 7, 1, 7, 2, Q("20.123927 mm")))
sketch7.addConstraint(Sketcher.Constraint("DistanceX", 24, 2, 24, 1, Q("2.872006 mm")))
sketch7.addConstraint(Sketcher.Constraint("DistanceX", 31, 1, 31, 2, Q("18.514303 mm")))
sketch7.addConstraint(Sketcher.Constraint("DistanceX", -1, 1, 15, 3, Q("299.654911 mm")))
sketch7.addConstraint(Sketcher.Constraint("DistanceY", -1, 1, 15, 3, Q("97.241682 mm")))
sketch7.addConstraint(Sketcher.Constraint("DistanceX", -1, 1, 22, 3, Q("395.323541 mm")))
sketch7.addConstraint(Sketcher.Constraint("DistanceX", -1, 1, 0, 2, Q("465.386249 mm")))
sketch7.addConstraint(Sketcher.Constraint("DistanceY", -1, 1, 0, 2, Q("134.984588 mm")))
sketch7.addConstraint(Sketcher.Constraint("DistanceY", -1, 1, 3, 2, Q("134.984249 mm")))
sketch7.addConstraint(Sketcher.Constraint("DistanceY", 6, 2, -1, 1, Q("46.166038 mm")))
sketch7.addConstraint(Sketcher.Constraint("DistanceX", -1, 1, 8, 2, Q("348.096628 mm")))
sketch7.addConstraint(Sketcher.Constraint("DistanceY", 9, 2, -1, 1, Q("62.165948 mm")))
sketch7.addConstraint(Sketcher.Constraint("DistanceY", -1, 1, 13, 2, Q("118.984688 mm")))
sketch7.addConstraint(Sketcher.Constraint("DistanceY", -1, 1, 17, 2, Q("116.42091 mm")))
sketch7.addConstraint(Sketcher.Constraint("DistanceX", -1, 1, 18, 2, Q("401.47268 mm")))
sketch7.addConstraint(Sketcher.Constraint("DistanceX", -1, 1, 21, 2, Q("294.358219 mm")))
sketch7.addConstraint(Sketcher.Constraint("DistanceX", -1, 1, 25, 2, Q("426.620209 mm")))
sketch7.addConstraint(Sketcher.Constraint("DistanceY", -1, 1, 26, 2, Q("103.93779 mm")))
sketch7.addConstraint(Sketcher.Constraint("DistanceX", -1, 1, 30, 2, Q("442.602091 mm")))
sketch7.addConstraint(Sketcher.Constraint("DistanceY", -1, 1, 32, 2, Q("134.984588 mm")))
sketch7.addConstraint(Sketcher.Constraint("DistanceY", -1, 1, 34, 2, Q("117.549638 mm")))
sketch7.addConstraint(Sketcher.Constraint("DistanceY", -1, 1, 35, 2, Q("110.24317 mm")))
sketch7.addConstraint(Sketcher.Constraint("DistanceY", -1, 1, 37, 2, Q("103.060878 mm")))
sketch7.addConstraint(Sketcher.Constraint("DistanceY", -1, 1, 38, 2, Q("115.090208 mm")))
sketch7.addConstraint(Sketcher.Constraint("DistanceY", 10, 3, 0, 2, Q("119.121061 mm")))
sketch7.addConstraint(Sketcher.Constraint("DistanceY", 22, 3, 1, 2, Q("40.71955 mm")))
sketch7.addConstraint(Sketcher.Constraint("DistanceX", 10, 3, 1, 2, Q("114.52858 mm")))
sketch7.addConstraint(Sketcher.Constraint("DistanceX", 4, 2, 10, 3, Q("3.585152 mm")))
sketch7.addConstraint(Sketcher.Constraint("DistanceY", 22, 3, 11, 2, Q("37.716072 mm")))
sketch7.addConstraint(Sketcher.Constraint("DistanceY", 10, 3, 11, 2, Q("120.54537 mm")))
sketch7.addConstraint(Sketcher.Constraint("DistanceY", 11, 2, 12, 2, Q("0.000409 mm")))
sketch7.addConstraint(Sketcher.Constraint("DistanceX", 2, 2, 12, 2, Q("20.205981 mm")))
sketch7.addConstraint(Sketcher.Constraint("DistanceX", 14, 2, 11, 2, Q("0.822749 mm")))
sketch7.addConstraint(Sketcher.Constraint("DistanceY", 14, 2, 11, 2, Q("1.424679 mm")))
sketch7.addConstraint(Sketcher.Constraint("DistanceY", 16, 2, 12, 2, Q("19.985041 mm")))
sketch7.addConstraint(Sketcher.Constraint("DistanceY", 23, 2, 1, 2, Q("6.486941 mm")))
sketch7.addConstraint(Sketcher.Constraint("DistanceX", 17, 2, 26, 2, Q("31.579069 mm")))
sketch7.addConstraint(Sketcher.Constraint("DistanceY", 25, 2, 28, 2, Q("0.000419 mm")))
sketch7.addConstraint(Sketcher.Constraint("DistanceY", 0, 2, 29, 2, Q("1.42471 mm")))
sketch7.addConstraint(Sketcher.Constraint("DistanceY", 30, 2, 1, 2, Q("3.003068 mm")))
sketch7.addConstraint(Sketcher.Constraint("DistanceY", 36, 2, 35, 2, Q("9.813028 mm")))
sketch7.addConstraint(Sketcher.Constraint("DistanceX", 38, 2, 24, 2, Q("14.401449 mm")))
sketch7.addConstraint(Sketcher.Constraint("DistanceX", 39, 2, 34, 2, Q("2.354529 mm")))
sketch7.addConstraint(Sketcher.Constraint("DistanceX", 39, 2, 40, 2, Q("1.447969 mm")))
pad4 = body.newObject("PartDesign::Pad", "Pad003")
pad4.Profile = sketch7
pad4.Length = 1

# Sketch on XZ plane
sketch8 = body.newObject("Sketcher::SketchObject", "Sketch007")
sketch8.AttachmentSupport = (doc.getObject("XZ_Plane"), [""])
sketch8.MapMode = "FlatFace"
sketch8.AttachmentOffset = App.Placement(V(0, 0, 3), App.Rotation())
sketch8.addGeometry(Part.LineSegment(V(347.4179, 11.962292, 0), V(347.307477, 11.474638, 0)), False)
sketch8.addGeometry(Part.ArcOfCircle(Part.Circle(V(348.301285, 15.863527, 0), V(0, 0, 1), 4.5), math.radians(-167.24126), math.radians(-102.75874)), False)
sketch8.addGeometry(Part.LineSegment(V(343.912396, 14.869719, 0), V(344.400051, 14.980142, 0)), False)
sketch8.addGeometry(Part.ArcOfCircle(Part.Circle(V(348.301285, 15.863527, 0), V(0, 0, 1), 4), math.radians(-167.24126), math.radians(-102.75874)), False)
sketch8.addGeometry(Part.ArcOfCircle(Part.Circle(V(348.301285, 15.863527, 0), V(0, 0, 1), 4.5), math.radians(-77.24126), math.radians(-12.75874)), False)
sketch8.addGeometry(Part.LineSegment(V(349.295093, 11.474638, 0), V(349.18467, 11.962292, 0)), False)
sketch8.addGeometry(Part.ArcOfCircle(Part.Circle(V(348.301285, 15.863527, 0), V(0, 0, 1), 4), math.radians(-77.24126), math.radians(-12.75874)), False)
sketch8.addGeometry(Part.LineSegment(V(352.20252, 14.980142, 0), V(352.690174, 14.869719, 0)), False)
sketch8.addGeometry(Part.ArcOfCircle(Part.Circle(V(348.301285, 15.863527, 0), V(0, 0, 1), 4.5), math.radians(12.75874), math.radians(77.24126)), False)
sketch8.addGeometry(Part.LineSegment(V(352.690174, 16.857335, 0), V(352.20252, 16.746912, 0)), False)
sketch8.addGeometry(Part.ArcOfCircle(Part.Circle(V(348.301285, 15.863527, 0), V(0, 0, 1), 4), math.radians(12.75874), math.radians(77.24126)), False)
sketch8.addGeometry(Part.LineSegment(V(349.18467, 19.764761, 0), V(349.295093, 20.252416, 0)), False)
sketch8.addGeometry(Part.LineSegment(V(344.400051, 16.746912, 0), V(343.912396, 16.857335, 0)), False)
sketch8.addGeometry(Part.ArcOfCircle(Part.Circle(V(348.301285, 15.863527, 0), V(0, 0, 1), 4.5), math.radians(102.75874), math.radians(167.24126)), False)
sketch8.addGeometry(Part.LineSegment(V(347.307477, 20.252416, 0), V(347.4179, 19.764761, 0)), False)
sketch8.addGeometry(Part.ArcOfCircle(Part.Circle(V(348.301285, 15.863527, 0), V(0, 0, 1), 4), math.radians(102.75874), math.radians(167.24126)), False)
sketch8.addGeometry(Part.LineSegment(V(394.440156, 94.79159, 0), V(394.329733, 94.303935, 0)), False)
sketch8.addGeometry(Part.ArcOfCircle(Part.Circle(V(395.323541, 98.692824, 0), V(0, 0, 1), 4.5), math.radians(-167.24126), math.radians(-102.75874)), False)
sketch8.addGeometry(Part.LineSegment(V(390.934652, 97.699016, 0), V(391.42479, 97.798543, 0)), False)
sketch8.addGeometry(Part.ArcOfCircle(Part.Circle(V(395.323541, 98.692824, 0), V(0, 0, 1), 4), math.radians(-167.081178), math.radians(-102.75874)), False)
sketch8.addGeometry(Part.ArcOfCircle(Part.Circle(V(395.323541, 98.692824, 0), V(0, 0, 1), 4.5), math.radians(-77.24126), math.radians(-12.75874)), False)
sketch8.addGeometry(Part.LineSegment(V(396.317349, 94.303935, 0), V(396.206926, 94.79159, 0)), False)
sketch8.addGeometry(Part.ArcOfCircle(Part.Circle(V(395.323541, 98.692824, 0), V(0, 0, 1), 4), math.radians(-77.24126), math.radians(-12.75874)), False)
sketch8.addGeometry(Part.LineSegment(V(399.224775, 97.809439, 0), V(399.71243, 97.699016, 0)), False)
sketch8.addGeometry(Part.ArcOfCircle(Part.Circle(V(395.323541, 98.692824, 0), V(0, 0, 1), 4.5), math.radians(12.75874), math.radians(77.24126)), False)
sketch8.addGeometry(Part.LineSegment(V(399.71243, 99.686632, 0), V(399.224775, 99.576209, 0)), False)
sketch8.addGeometry(Part.ArcOfCircle(Part.Circle(V(395.323541, 98.692824, 0), V(0, 0, 1), 4), math.radians(12.75874), math.radians(77.24126)), False)
sketch8.addGeometry(Part.LineSegment(V(396.206926, 102.594059, 0), V(396.317349, 103.081713, 0)), False)
sketch8.addGeometry(Part.LineSegment(V(391.422306, 99.576209, 0), V(390.934652, 99.686632, 0)), False)
sketch8.addGeometry(Part.ArcOfCircle(Part.Circle(V(395.323541, 98.692824, 0), V(0, 0, 1), 4.5), math.radians(102.75874), math.radians(167.24126)), False)
sketch8.addGeometry(Part.LineSegment(V(394.329733, 103.081713, 0), V(394.440156, 102.594059, 0)), False)
sketch8.addGeometry(Part.ArcOfCircle(Part.Circle(V(395.323541, 98.692824, 0), V(0, 0, 1), 4), math.radians(102.75874), math.radians(167.24126)), False)
sketch8.addGeometry(Part.ArcOfCircle(Part.Circle(V(299.654911, 97.241682, 0), V(0, 0, 1), 4.5), math.radians(-167.24126), math.radians(-102.75874)), False)
sketch8.addGeometry(Part.LineSegment(V(295.266023, 96.247874, 0), V(295.753677, 96.358297, 0)), False)
sketch8.addGeometry(Part.ArcOfCircle(Part.Circle(V(299.654911, 97.241682, 0), V(0, 0, 1), 4), math.radians(-167.24126), math.radians(-102.75874)), False)
sketch8.addGeometry(Part.LineSegment(V(298.771527, 93.340447, 0), V(298.661103, 92.852793, 0)), False)
sketch8.addGeometry(Part.ArcOfCircle(Part.Circle(V(299.654911, 97.241682, 0), V(0, 0, 1), 4.5), math.radians(-77.24126), math.radians(-12.75874)), False)
sketch8.addGeometry(Part.LineSegment(V(300.648719, 92.852793, 0), V(300.538296, 93.340447, 0)), False)
sketch8.addGeometry(Part.ArcOfCircle(Part.Circle(V(299.654911, 97.241682, 0), V(0, 0, 1), 4), math.radians(-77.24126), math.radians(-12.75874)), False)
sketch8.addGeometry(Part.LineSegment(V(303.556146, 96.358297, 0), V(304.0438, 96.247874, 0)), False)
sketch8.addGeometry(Part.LineSegment(V(300.538296, 101.142916, 0), V(300.648719, 101.630571, 0)), False)
sketch8.addGeometry(Part.ArcOfCircle(Part.Circle(V(299.654911, 97.241682, 0), V(0, 0, 1), 4.5), math.radians(12.75874), math.radians(77.24126)), False)
sketch8.addGeometry(Part.LineSegment(V(304.0438, 98.23549, 0), V(303.556146, 98.125067, 0)), False)
sketch8.addGeometry(Part.ArcOfCircle(Part.Circle(V(299.654911, 97.241682, 0), V(0, 0, 1), 4), math.radians(12.75874), math.radians(77.24126)), False)
sketch8.addGeometry(Part.LineSegment(V(295.753677, 98.125067, 0), V(295.266023, 98.23549, 0)), False)
sketch8.addGeometry(Part.ArcOfCircle(Part.Circle(V(299.654911, 97.241682, 0), V(0, 0, 1), 4.5), math.radians(102.75874), math.radians(167.24126)), False)
sketch8.addGeometry(Part.LineSegment(V(298.661103, 101.630571, 0), V(298.771527, 101.142916, 0)), False)
sketch8.addGeometry(Part.ArcOfCircle(Part.Circle(V(299.654911, 97.241682, 0), V(0, 0, 1), 4), math.radians(102.75874), math.radians(167.24126)), False)
sketch8.addConstraint(Sketcher.Constraint("Coincident", 0, 2, 1, 2))
sketch8.addConstraint(Sketcher.Constraint("Coincident", 1, 1, 2, 1))
sketch8.addConstraint(Sketcher.Constraint("Coincident", 2, 2, 3, 1))
sketch8.addConstraint(Sketcher.Constraint("Coincident", 3, 2, 0, 1))
sketch8.addConstraint(Sketcher.Constraint("Coincident", 4, 1, 5, 1))
sketch8.addConstraint(Sketcher.Constraint("Coincident", 5, 2, 6, 1))
sketch8.addConstraint(Sketcher.Constraint("Coincident", 6, 2, 7, 1))
sketch8.addConstraint(Sketcher.Constraint("Coincident", 7, 2, 4, 2))
sketch8.addConstraint(Sketcher.Constraint("Coincident", 8, 1, 9, 1))
sketch8.addConstraint(Sketcher.Constraint("Coincident", 9, 2, 10, 1))
sketch8.addConstraint(Sketcher.Constraint("Coincident", 10, 2, 11, 1))
sketch8.addConstraint(Sketcher.Constraint("Coincident", 11, 2, 8, 2))
sketch8.addConstraint(Sketcher.Constraint("Coincident", 12, 2, 13, 2))
sketch8.addConstraint(Sketcher.Constraint("Coincident", 13, 1, 14, 1))
sketch8.addConstraint(Sketcher.Constraint("Coincident", 14, 2, 15, 1))
sketch8.addConstraint(Sketcher.Constraint("Coincident", 15, 2, 12, 1))
sketch8.addConstraint(Sketcher.Constraint("Coincident", 16, 2, 17, 2))
sketch8.addConstraint(Sketcher.Constraint("Coincident", 17, 1, 18, 1))
sketch8.addConstraint(Sketcher.Constraint("Coincident", 18, 2, 19, 1))
sketch8.addConstraint(Sketcher.Constraint("Coincident", 19, 2, 16, 1))
sketch8.addConstraint(Sketcher.Constraint("Coincident", 20, 1, 21, 1))
sketch8.addConstraint(Sketcher.Constraint("Coincident", 21, 2, 22, 1))
sketch8.addConstraint(Sketcher.Constraint("Coincident", 22, 2, 23, 1))
sketch8.addConstraint(Sketcher.Constraint("Coincident", 23, 2, 20, 2))
sketch8.addConstraint(Sketcher.Constraint("Coincident", 24, 1, 25, 1))
sketch8.addConstraint(Sketcher.Constraint("Coincident", 25, 2, 26, 1))
sketch8.addConstraint(Sketcher.Constraint("Coincident", 26, 2, 27, 1))
sketch8.addConstraint(Sketcher.Constraint("Coincident", 27, 2, 24, 2))
sketch8.addConstraint(Sketcher.Constraint("Coincident", 28, 2, 29, 2))
sketch8.addConstraint(Sketcher.Constraint("Coincident", 29, 1, 30, 1))
sketch8.addConstraint(Sketcher.Constraint("Coincident", 30, 2, 31, 1))
sketch8.addConstraint(Sketcher.Constraint("Coincident", 31, 2, 28, 1))
sketch8.addConstraint(Sketcher.Constraint("Coincident", 32, 1, 33, 1))
sketch8.addConstraint(Sketcher.Constraint("Coincident", 33, 2, 34, 1))
sketch8.addConstraint(Sketcher.Constraint("Coincident", 34, 2, 35, 1))
sketch8.addConstraint(Sketcher.Constraint("Coincident", 35, 2, 32, 2))
sketch8.addConstraint(Sketcher.Constraint("Coincident", 36, 1, 37, 1))
sketch8.addConstraint(Sketcher.Constraint("Coincident", 37, 2, 38, 1))
sketch8.addConstraint(Sketcher.Constraint("Coincident", 38, 2, 39, 1))
sketch8.addConstraint(Sketcher.Constraint("Coincident", 39, 2, 36, 2))
sketch8.addConstraint(Sketcher.Constraint("Coincident", 40, 2, 41, 2))
sketch8.addConstraint(Sketcher.Constraint("Coincident", 41, 1, 42, 1))
sketch8.addConstraint(Sketcher.Constraint("Coincident", 42, 2, 43, 1))
sketch8.addConstraint(Sketcher.Constraint("Coincident", 43, 2, 40, 1))
sketch8.addConstraint(Sketcher.Constraint("Coincident", 44, 2, 45, 2))
sketch8.addConstraint(Sketcher.Constraint("Coincident", 45, 1, 46, 1))
sketch8.addConstraint(Sketcher.Constraint("Coincident", 46, 2, 47, 1))
sketch8.addConstraint(Sketcher.Constraint("Coincident", 47, 2, 44, 1))
sketch8.addConstraint(Sketcher.Constraint("Coincident", 3, 3, 1, 3))
sketch8.addConstraint(Sketcher.Constraint("Coincident", 4, 3, 1, 3))
sketch8.addConstraint(Sketcher.Constraint("Coincident", 6, 3, 1, 3))
sketch8.addConstraint(Sketcher.Constraint("Coincident", 8, 3, 1, 3))
sketch8.addConstraint(Sketcher.Constraint("Coincident", 10, 3, 1, 3))
sketch8.addConstraint(Sketcher.Constraint("Coincident", 13, 3, 1, 3))
sketch8.addConstraint(Sketcher.Constraint("Coincident", 15, 3, 1, 3))
sketch8.addConstraint(Sketcher.Constraint("Coincident", 19, 3, 17, 3))
sketch8.addConstraint(Sketcher.Constraint("Coincident", 20, 3, 17, 3))
sketch8.addConstraint(Sketcher.Constraint("Coincident", 22, 3, 17, 3))
sketch8.addConstraint(Sketcher.Constraint("Coincident", 24, 3, 17, 3))
sketch8.addConstraint(Sketcher.Constraint("Coincident", 26, 3, 17, 3))
sketch8.addConstraint(Sketcher.Constraint("Coincident", 29, 3, 17, 3))
sketch8.addConstraint(Sketcher.Constraint("Coincident", 31, 3, 17, 3))
sketch8.addConstraint(Sketcher.Constraint("Coincident", 34, 3, 32, 3))
sketch8.addConstraint(Sketcher.Constraint("Coincident", 36, 3, 32, 3))
sketch8.addConstraint(Sketcher.Constraint("Coincident", 38, 3, 32, 3))
sketch8.addConstraint(Sketcher.Constraint("Coincident", 41, 3, 32, 3))
sketch8.addConstraint(Sketcher.Constraint("Coincident", 43, 3, 32, 3))
sketch8.addConstraint(Sketcher.Constraint("Coincident", 45, 3, 32, 3))
sketch8.addConstraint(Sketcher.Constraint("Coincident", 47, 3, 32, 3))
sketch8.addConstraint(Sketcher.Constraint("Equal", 1, 4))
sketch8.addConstraint(Sketcher.Constraint("Equal", 3, 6))
sketch8.addConstraint(Sketcher.Constraint("Equal", 4, 8))
sketch8.addConstraint(Sketcher.Constraint("Equal", 6, 10))
sketch8.addConstraint(Sketcher.Constraint("Equal", 8, 13))
sketch8.addConstraint(Sketcher.Constraint("Equal", 10, 15))
sketch8.addConstraint(Sketcher.Constraint("Equal", 13, 17))
sketch8.addConstraint(Sketcher.Constraint("Equal", 15, 19))
sketch8.addConstraint(Sketcher.Constraint("Equal", 17, 20))
sketch8.addConstraint(Sketcher.Constraint("Equal", 19, 22))
sketch8.addConstraint(Sketcher.Constraint("Equal", 20, 24))
sketch8.addConstraint(Sketcher.Constraint("Equal", 22, 26))
sketch8.addConstraint(Sketcher.Constraint("Equal", 24, 29))
sketch8.addConstraint(Sketcher.Constraint("Equal", 26, 31))
sketch8.addConstraint(Sketcher.Constraint("Equal", 29, 32))
sketch8.addConstraint(Sketcher.Constraint("Equal", 31, 34))
sketch8.addConstraint(Sketcher.Constraint("Equal", 32, 36))
sketch8.addConstraint(Sketcher.Constraint("Equal", 34, 38))
sketch8.addConstraint(Sketcher.Constraint("Equal", 36, 41))
sketch8.addConstraint(Sketcher.Constraint("Equal", 38, 43))
sketch8.addConstraint(Sketcher.Constraint("Equal", 41, 45))
sketch8.addConstraint(Sketcher.Constraint("Equal", 43, 47))
sketch8.addConstraint(Sketcher.Constraint("Perpendicular", 2, 5))
sketch8.addConstraint(Sketcher.Constraint("Perpendicular", 0, 7))
sketch8.addConstraint(Sketcher.Constraint("Perpendicular", 5, 9))
sketch8.addConstraint(Sketcher.Constraint("Perpendicular", 7, 11))
sketch8.addConstraint(Sketcher.Constraint("Perpendicular", 11, 12))
sketch8.addConstraint(Sketcher.Constraint("Perpendicular", 9, 14))
sketch8.addConstraint(Sketcher.Constraint("Perpendicular", 12, 16))
sketch8.addConstraint(Sketcher.Constraint("Parallel", 14, 21))
sketch8.addConstraint(Sketcher.Constraint("Perpendicular", 16, 23))
sketch8.addConstraint(Sketcher.Constraint("Perpendicular", 21, 25))
sketch8.addConstraint(Sketcher.Constraint("Perpendicular", 23, 27))
sketch8.addConstraint(Sketcher.Constraint("Perpendicular", 27, 28))
sketch8.addConstraint(Sketcher.Constraint("Perpendicular", 25, 30))
sketch8.addConstraint(Sketcher.Constraint("Perpendicular", 30, 33))
sketch8.addConstraint(Sketcher.Constraint("Perpendicular", 28, 35))
sketch8.addConstraint(Sketcher.Constraint("Perpendicular", 33, 37))
sketch8.addConstraint(Sketcher.Constraint("Perpendicular", 35, 39))
sketch8.addConstraint(Sketcher.Constraint("Perpendicular", 39, 40))
sketch8.addConstraint(Sketcher.Constraint("Perpendicular", 37, 42))
sketch8.addConstraint(Sketcher.Constraint("Perpendicular", 40, 44))
sketch8.addConstraint(Sketcher.Constraint("Perpendicular", 42, 46))
sketch8.addConstraint(Sketcher.Constraint("Horizontal", 0, 2, 4, 1))
sketch8.addConstraint(Sketcher.Constraint("Horizontal", 3, 2, 5, 2))
sketch8.addConstraint(Sketcher.Constraint("Horizontal", 2, 2, 6, 2))
sketch8.addConstraint(Sketcher.Constraint("Horizontal", 8, 1, 12, 2))
sketch8.addConstraint(Sketcher.Constraint("Horizontal", 11, 2, 13, 1))
sketch8.addConstraint(Sketcher.Constraint("Horizontal", 16, 2, 20, 1))
sketch8.addConstraint(Sketcher.Constraint("Horizontal", 17, 1, 23, 2))
sketch8.addConstraint(Sketcher.Constraint("Horizontal", 24, 1, 28, 2))
sketch8.addConstraint(Sketcher.Constraint("Horizontal", 27, 2, 29, 1))
sketch8.addConstraint(Sketcher.Constraint("Horizontal", 35, 2, 36, 1))
sketch8.addConstraint(Sketcher.Constraint("Horizontal", 33, 2, 38, 2))
sketch8.addConstraint(Sketcher.Constraint("Horizontal", 41, 1, 44, 2))
sketch8.addConstraint(Sketcher.Constraint("Horizontal", 40, 2, 45, 1))
sketch8.addConstraint(Sketcher.Constraint("Vertical", 7, 2, 8, 1))
sketch8.addConstraint(Sketcher.Constraint("Vertical", 5, 2, 10, 2))
sketch8.addConstraint(Sketcher.Constraint("Vertical", 23, 2, 24, 1))
sketch8.addConstraint(Sketcher.Constraint("Vertical", 21, 2, 26, 2))
sketch8.addConstraint(Sketcher.Constraint("Vertical", 36, 1, 40, 2))
sketch8.addConstraint(Sketcher.Constraint("Vertical", 39, 2, 41, 1))
sketch8.addConstraint(Sketcher.Constraint("Radius", 3, Q("4 mm")))
sketch8.addConstraint(Sketcher.Constraint("Radius", 1, Q("4.5 mm")))
sketch8.addConstraint(Sketcher.Constraint("DistanceX", -1, 1, 3, 2, Q("347.4179 mm")))
sketch8.addConstraint(Sketcher.Constraint("DistanceX", -1, 1, 39, 2, Q("304.0438 mm")))
sketch8.addConstraint(Sketcher.Constraint("Distance", 18, Q("0.50014 mm")))
sketch8.addConstraint(Sketcher.Constraint("DistanceX", -1, 1, 17, 3, Q("395.323541 mm")))
sketch8.addConstraint(Sketcher.Constraint("DistanceX", -1, 1, 32, 3, Q("299.654911 mm")))
sketch8.addConstraint(Sketcher.Constraint("DistanceY", -1, 1, 32, 3, Q("97.241682 mm")))
sketch8.addConstraint(Sketcher.Constraint("DistanceY", -1, 1, 1, 1, Q("14.869719 mm")))
sketch8.addConstraint(Sketcher.Constraint("DistanceX", -1, 1, 2, 2, Q("344.400051 mm")))
sketch8.addConstraint(Sketcher.Constraint("DistanceY", -1, 1, 2, 2, Q("14.980142 mm")))
sketch8.addConstraint(Sketcher.Constraint("DistanceX", -1, 1, 5, 2, Q("349.18467 mm")))
sketch8.addConstraint(Sketcher.Constraint("DistanceX", -1, 1, 17, 1, Q("390.934652 mm")))
sketch8.addConstraint(Sketcher.Constraint("DistanceY", -1, 1, 19, 2, Q("94.79159 mm")))
sketch8.addConstraint(Sketcher.Constraint("DistanceX", -1, 1, 20, 1, Q("396.317349 mm")))
sketch8.addConstraint(Sketcher.Constraint("DistanceX", -1, 1, 36, 1, Q("300.648719 mm")))
pad5 = body.newObject("PartDesign::Pad", "Pad004")
pad5.Profile = sketch8
pad5.Length = 3
pad5.Reversed = True

doc.recompute()
